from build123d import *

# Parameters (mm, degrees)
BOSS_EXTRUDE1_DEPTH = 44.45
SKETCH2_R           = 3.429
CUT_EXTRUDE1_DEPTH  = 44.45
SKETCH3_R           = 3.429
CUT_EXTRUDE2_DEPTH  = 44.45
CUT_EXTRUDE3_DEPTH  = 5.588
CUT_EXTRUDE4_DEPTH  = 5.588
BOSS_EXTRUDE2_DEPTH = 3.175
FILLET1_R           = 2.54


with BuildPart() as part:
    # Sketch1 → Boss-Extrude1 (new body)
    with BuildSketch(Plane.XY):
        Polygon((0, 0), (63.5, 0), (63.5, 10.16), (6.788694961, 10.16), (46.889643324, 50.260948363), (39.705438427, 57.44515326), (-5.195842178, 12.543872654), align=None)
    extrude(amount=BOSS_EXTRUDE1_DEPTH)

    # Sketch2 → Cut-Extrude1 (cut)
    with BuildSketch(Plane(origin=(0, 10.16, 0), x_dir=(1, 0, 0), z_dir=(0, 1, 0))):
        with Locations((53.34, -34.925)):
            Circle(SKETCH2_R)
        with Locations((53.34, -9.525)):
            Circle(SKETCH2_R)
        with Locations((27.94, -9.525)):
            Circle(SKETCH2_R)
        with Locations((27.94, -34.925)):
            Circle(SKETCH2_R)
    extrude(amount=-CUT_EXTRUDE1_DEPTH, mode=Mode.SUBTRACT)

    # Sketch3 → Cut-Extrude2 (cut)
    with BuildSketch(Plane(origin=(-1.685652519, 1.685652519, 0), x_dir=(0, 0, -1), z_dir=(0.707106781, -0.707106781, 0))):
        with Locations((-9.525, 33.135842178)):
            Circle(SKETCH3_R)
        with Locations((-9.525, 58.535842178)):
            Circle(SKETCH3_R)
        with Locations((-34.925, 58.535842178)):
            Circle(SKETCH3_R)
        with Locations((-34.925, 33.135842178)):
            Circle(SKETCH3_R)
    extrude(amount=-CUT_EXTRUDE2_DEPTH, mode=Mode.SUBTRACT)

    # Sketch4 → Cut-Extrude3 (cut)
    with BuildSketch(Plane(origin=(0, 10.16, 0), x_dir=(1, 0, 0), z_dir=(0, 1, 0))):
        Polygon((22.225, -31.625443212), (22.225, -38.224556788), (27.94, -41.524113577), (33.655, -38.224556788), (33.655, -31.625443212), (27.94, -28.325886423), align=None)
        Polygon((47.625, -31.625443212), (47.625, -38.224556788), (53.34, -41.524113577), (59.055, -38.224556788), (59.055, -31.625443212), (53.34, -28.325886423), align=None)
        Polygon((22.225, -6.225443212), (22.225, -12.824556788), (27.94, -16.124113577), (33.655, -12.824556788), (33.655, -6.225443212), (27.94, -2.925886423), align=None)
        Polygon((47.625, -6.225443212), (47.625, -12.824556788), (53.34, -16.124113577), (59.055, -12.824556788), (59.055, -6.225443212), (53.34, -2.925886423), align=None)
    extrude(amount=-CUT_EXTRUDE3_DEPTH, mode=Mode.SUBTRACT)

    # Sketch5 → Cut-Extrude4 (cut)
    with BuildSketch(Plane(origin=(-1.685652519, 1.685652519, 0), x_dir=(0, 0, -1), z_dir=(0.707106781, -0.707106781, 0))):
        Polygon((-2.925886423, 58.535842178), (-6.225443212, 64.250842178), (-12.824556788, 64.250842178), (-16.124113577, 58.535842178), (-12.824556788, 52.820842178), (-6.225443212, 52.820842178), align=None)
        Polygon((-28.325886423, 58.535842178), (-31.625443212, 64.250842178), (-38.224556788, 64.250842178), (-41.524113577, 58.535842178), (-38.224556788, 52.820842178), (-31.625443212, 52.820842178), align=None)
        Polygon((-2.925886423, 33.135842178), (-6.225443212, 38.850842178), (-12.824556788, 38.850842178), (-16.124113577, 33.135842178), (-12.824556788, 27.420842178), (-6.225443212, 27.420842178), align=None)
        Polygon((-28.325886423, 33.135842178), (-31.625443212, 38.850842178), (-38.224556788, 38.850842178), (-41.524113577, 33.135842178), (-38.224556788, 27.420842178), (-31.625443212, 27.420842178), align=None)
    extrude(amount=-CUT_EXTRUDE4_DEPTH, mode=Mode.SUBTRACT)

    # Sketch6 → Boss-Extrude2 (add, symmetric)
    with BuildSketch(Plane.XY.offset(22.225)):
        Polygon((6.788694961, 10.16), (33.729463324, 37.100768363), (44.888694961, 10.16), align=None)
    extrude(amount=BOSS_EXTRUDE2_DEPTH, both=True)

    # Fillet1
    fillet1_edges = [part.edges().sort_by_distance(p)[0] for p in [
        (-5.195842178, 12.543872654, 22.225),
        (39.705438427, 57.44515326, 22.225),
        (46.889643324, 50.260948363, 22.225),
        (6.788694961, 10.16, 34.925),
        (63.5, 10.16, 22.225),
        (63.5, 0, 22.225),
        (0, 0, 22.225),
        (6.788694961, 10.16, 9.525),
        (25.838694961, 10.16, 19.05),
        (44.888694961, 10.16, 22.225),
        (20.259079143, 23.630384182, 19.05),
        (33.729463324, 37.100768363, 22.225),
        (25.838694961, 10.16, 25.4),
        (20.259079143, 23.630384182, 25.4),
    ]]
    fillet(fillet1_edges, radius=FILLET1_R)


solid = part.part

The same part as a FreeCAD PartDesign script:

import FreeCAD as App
import Part
import Sketcher
from FreeCAD import Vector
Q = App.Units.Quantity


def edges_at(feature, points):
    """Names of the edges that pass closest to the given points."""
    edges = feature.Shape.Edges
    near = lambda p: min(range(len(edges)), key=lambda i: edges[i].distToShape(Part.Vertex(*p))[0])
    return sorted({f"Edge{near(p) + 1}" for p in points})

doc = App.newDocument("Part")
params = doc.addObject("Spreadsheet::Sheet", "Params")
for row, (alias, value) in enumerate([
    ("sketch1_width", "2.5 in"),
    ("sketch1_height", "0.4 in"),
    ("sketch1_length", "0.4 in"),
    ("sketch1_length2", "2.5 in"),
    ("pad1_length", "1.75 in"),
    ("sketch2_diameter", "0.27 in"),
    ("pocket1_length", "1.75 in"),
    ("sketch3_diameter", "0.27 in"),
    ("pocket2_length", "1.75 in"),
    ("pocket3_length", "0.22 in"),
    ("pocket4_length", "0.22 in"),
    ("sketch6_width", "1.5 in"),
    ("sketch6_length", "1.5 in"),
    ("pad2_length", "0.25 in"),
    ("fillet_radius", "0.1 in"),
], start=1):
    params.set(f"A{row}", alias)
    params.set(f"B{row}", "=" + value)
    params.setAlias(f"B{row}", alias)

body = doc.addObject("PartDesign::Body", "Body")

sketch1 = body.newObject("Sketcher::SketchObject", "Sketch")
sketch1.AttachmentSupport = (doc.getObject("XY_Plane"), [""])
sketch1.MapMode = "FlatFace"
sketch1.addGeometry([
    Part.LineSegment(Vector(0, 0, 0), Vector(63.5, 0, 0)),
    Part.LineSegment(Vector(63.5, 0, 0), Vector(63.5, 10.16, 0)),
    Part.LineSegment(Vector(63.5, 10.16, 0), Vector(6.788695, 10.16, 0)),
    Part.LineSegment(Vector(6.788695, 10.16, 0), Vector(46.889643, 50.260948, 0)),
    Part.LineSegment(Vector(46.889643, 50.260948, 0), Vector(39.705438, 57.445153, 0)),
    Part.LineSegment(Vector(39.705438, 57.445153, 0), Vector(-5.195842, 12.543873, 0)),
    Part.LineSegment(Vector(-5.195842, 12.543873, 0), Vector(0, 0, 0)),
], False)
sketch1.addConstraint([
    Sketcher.Constraint("Coincident", 0, 2, 1, 1),
    Sketcher.Constraint("Coincident", 1, 2, 2, 1),
    Sketcher.Constraint("Coincident", 2, 2, 3, 1),
    Sketcher.Constraint("Coincident", 3, 2, 4, 1),
    Sketcher.Constraint("Coincident", 4, 2, 5, 1),
    Sketcher.Constraint("Coincident", 5, 2, 6, 1),
    Sketcher.Constraint("Coincident", 6, 2, 0, 1),
    Sketcher.Constraint("Horizontal", 0),
    Sketcher.Constraint("Vertical", 1),
    Sketcher.Constraint("Horizontal", 2),
    Sketcher.Constraint("Coincident", 6, 2, -1, 1),
    Sketcher.Constraint("Perpendicular", 3, 4),
    Sketcher.Constraint("Perpendicular", 4, 5),
    Sketcher.Constraint("DistanceX", 0, 1, 0, 2, Q("2.5 in")),
    Sketcher.Constraint("DistanceY", 1, 1, 1, 2, Q("0.4 in")),
    Sketcher.Constraint("Angle", 3, Q("45 deg")),
    Sketcher.Constraint("Distance", 4, Q("0.4 in")),
    Sketcher.Constraint("Distance", 5, Q("2.5 in")),
    Sketcher.Constraint("Angle", 6, Q("-67.5 deg")),
    Sketcher.Constraint("Distance", 6, Q("13.57739 mm")),
])
sketch1.setExpression("Constraints[13]", "Params.sketch1_width")
sketch1.setExpression("Constraints[14]", "Params.sketch1_height")
sketch1.setExpression("Constraints[16]", "Params.sketch1_length")
sketch1.setExpression("Constraints[17]", "Params.sketch1_length2")
pad1 = body.newObject("PartDesign::Pad", "Pad")
pad1.Profile = sketch1
pad1.setExpression("Length", "Params.pad1_length")

sketch2 = body.newObject("Sketcher::SketchObject", "Sketch001")
sketch2.AttachmentSupport = (doc.getObject("XZ_Plane"), [""])
sketch2.MapMode = "FlatFace"
sketch2.AttachmentOffset = App.Placement(Vector(0, 0, -0.4 * 25.4), App.Rotation())
sketch2.addGeometry([
    Part.Circle(Vector(53.34, 34.925, 0), Vector(0, 0, 1), 3.429),
    Part.Circle(Vector(53.34, 9.525, 0), Vector(0, 0, 1), 3.429),
    Part.Circle(Vector(27.94, 9.525, 0), Vector(0, 0, 1), 3.429),
    Part.Circle(Vector(27.94, 34.925, 0), Vector(0, 0, 1), 3.429),
], False)
sketch2.addConstraint([
    Sketcher.Constraint("Equal", 0, 1),
    Sketcher.Constraint("Equal", 1, 2),
    Sketcher.Constraint("Equal", 2, 3),
    Sketcher.Constraint("Horizontal", 1, 3, 2, 3),
    Sketcher.Constraint("Horizontal", 0, 3, 3, 3),
    Sketcher.Constraint("Vertical", 0, 3, 1, 3),
    Sketcher.Constraint("Vertical", 2, 3, 3, 3),
    Sketcher.Constraint("Diameter", 0, Q("0.27 in")),
    Sketcher.Constraint("DistanceY", 1, 3, 0, 3, Q("1 in")),
    Sketcher.Constraint("DistanceX", 2, 3, 1, 3, Q("1 in")),
    Sketcher.Constraint("DistanceX", -1, 1, 0, 3, Q("2.1 in")),
    Sketcher.Constraint("DistanceY", -1, 1, 0, 3, Q("1.375 in")),
])
sketch2.setExpression("Constraints[7]", "Params.sketch2_diameter")
pocket1 = body.newObject("PartDesign::Pocket", "Pocket")
pocket1.Profile = sketch2
pocket1.setExpression("Length", "Params.pocket1_length")
pocket1.Reversed = True

sketch3 = body.newObject("Sketcher::SketchObject", "Sketch002")
sketch3.Placement = App.Placement(Vector(-1.685653, 1.685653, 0), App.Rotation(Vector(0, 0, -1), Vector(0.707106781, 0.707106781, 0), Vector(0.707106781, -0.707106781, 0), "ZXY"))
sketch3.addGeometry([
    Part.Circle(Vector(-9.525, 33.135842, 0), Vector(0, 0, 1), 3.429),
    Part.Circle(Vector(-9.525, 58.535842, 0), Vector(0, 0, 1), 3.429),
    Part.Circle(Vector(-34.925, 58.535842, 0), Vector(0, 0, 1), 3.429),
    Part.Circle(Vector(-34.925, 33.135842, 0), Vector(0, 0, 1), 3.429),
], False)
sketch3.addConstraint([
    Sketcher.Constraint("Equal", 0, 1),
    Sketcher.Constraint("Equal", 1, 2),
    Sketcher.Constraint("Equal", 2, 3),
    Sketcher.Constraint("Horizontal", 1, 3, 2, 3),
    Sketcher.Constraint("Horizontal", 0, 3, 3, 3),
    Sketcher.Constraint("Vertical", 0, 3, 1, 3),
    Sketcher.Constraint("Vertical", 2, 3, 3, 3),
    Sketcher.Constraint("Diameter", 0, Q("0.27 in")),
    Sketcher.Constraint("DistanceY", 0, 3, 1, 3, Q("1 in")),
    Sketcher.Constraint("DistanceX", 2, 3, 1, 3, Q("1 in")),
    Sketcher.Constraint("DistanceX", 0, 3, -1, 1, Q("0.375 in")),
    Sketcher.Constraint("DistanceY", -1, 1, 0, 3, Q("33.135842 mm")),
])
sketch3.setExpression("Constraints[7]", "Params.sketch3_diameter")
pocket2 = body.newObject("PartDesign::Pocket", "Pocket001")
pocket2.Profile = sketch3
pocket2.setExpression("Length", "Params.pocket2_length")

sketch4 = body.newObject("Sketcher::SketchObject", "Sketch003")
sketch4.AttachmentSupport = (doc.getObject("XZ_Plane"), [""])
sketch4.MapMode = "FlatFace"
sketch4.AttachmentOffset = App.Placement(Vector(0, 0, -0.4 * 25.4), App.Rotation())
sketch4.addGeometry([
    Part.LineSegment(Vector(22.225, 31.625443, 0), Vector(22.225, 38.224557, 0)),
    Part.LineSegment(Vector(22.225, 38.224557, 0), Vector(27.94, 41.524114, 0)),
    Part.LineSegment(Vector(27.94, 41.524114, 0), Vector(33.655, 38.224557, 0)),
    Part.LineSegment(Vector(33.655, 38.224557, 0), Vector(33.655, 31.625443, 0)),
    Part.LineSegment(Vector(33.655, 31.625443, 0), Vector(27.94, 28.325886, 0)),
    Part.LineSegment(Vector(27.94, 28.325886, 0), Vector(22.225, 31.625443, 0)),
    Part.LineSegment(Vector(47.625, 31.625443, 0), Vector(47.625, 38.224557, 0)),
    Part.LineSegment(Vector(47.625, 38.224557, 0), Vector(53.34, 41.524114, 0)),
    Part.LineSegment(Vector(53.34, 41.524114, 0), Vector(59.055, 38.224557, 0)),
    Part.LineSegment(Vector(59.055, 38.224557, 0), Vector(59.055, 31.625443, 0)),
    Part.LineSegment(Vector(59.055, 31.625443, 0), Vector(53.34, 28.325886, 0)),
    Part.LineSegment(Vector(53.34, 28.325886, 0), Vector(47.625, 31.625443, 0)),
    Part.LineSegment(Vector(22.225, 6.225443, 0), Vector(22.225, 12.824557, 0)),
    Part.LineSegment(Vector(22.225, 12.824557, 0), Vector(27.94, 16.124114, 0)),
    Part.LineSegment(Vector(27.94, 16.124114, 0), Vector(33.655, 12.824557, 0)),
    Part.LineSegment(Vector(33.655, 12.824557, 0), Vector(33.655, 6.225443, 0)),
    Part.LineSegment(Vector(33.655, 6.225443, 0), Vector(27.94, 2.925886, 0)),
    Part.LineSegment(Vector(27.94, 2.925886, 0), Vector(22.225, 6.225443, 0)),
    Part.LineSegment(Vector(47.625, 6.225443, 0), Vector(47.625, 12.824557, 0)),
    Part.LineSegment(Vector(47.625, 12.824557, 0), Vector(53.34, 16.124114, 0)),
    Part.LineSegment(Vector(53.34, 16.124114, 0), Vector(59.055, 12.824557, 0)),
    Part.LineSegment(Vector(59.055, 12.824557, 0), Vector(59.055, 6.225443, 0)),
    Part.LineSegment(Vector(59.055, 6.225443, 0), Vector(53.34, 2.925886, 0)),
    Part.LineSegment(Vector(53.34, 2.925886, 0), Vector(47.625, 6.225443, 0)),
], False)
sketch4.addConstraint([
    Sketcher.Constraint("Coincident", 0, 2, 1, 1),
    Sketcher.Constraint("Coincident", 1, 2, 2, 1),
    Sketcher.Constraint("Coincident", 2, 2, 3, 1),
    Sketcher.Constraint("Coincident", 3, 2, 4, 1),
    Sketcher.Constraint("Coincident", 4, 2, 5, 1),
    Sketcher.Constraint("Coincident", 5, 2, 0, 1),
    Sketcher.Constraint("Coincident", 6, 2, 7, 1),
    Sketcher.Constraint("Coincident", 7, 2, 8, 1),
    Sketcher.Constraint("Coincident", 8, 2, 9, 1),
    Sketcher.Constraint("Coincident", 9, 2, 10, 1),
    Sketcher.Constraint("Coincident", 10, 2, 11, 1),
    Sketcher.Constraint("Coincident", 11, 2, 6, 1),
    Sketcher.Constraint("Coincident", 12, 2, 13, 1),
    Sketcher.Constraint("Coincident", 13, 2, 14, 1),
    Sketcher.Constraint("Coincident", 14, 2, 15, 1),
    Sketcher.Constraint("Coincident", 15, 2, 16, 1),
    Sketcher.Constraint("Coincident", 16, 2, 17, 1),
    Sketcher.Constraint("Coincident", 17, 2, 12, 1),
    Sketcher.Constraint("Coincident", 18, 2, 19, 1),
    Sketcher.Constraint("Coincident", 19, 2, 20, 1),
    Sketcher.Constraint("Coincident", 20, 2, 21, 1),
    Sketcher.Constraint("Coincident", 21, 2, 22, 1),
    Sketcher.Constraint("Coincident", 22, 2, 23, 1),
    Sketcher.Constraint("Coincident", 23, 2, 18, 1),
    Sketcher.Constraint("Vertical", 0),
    Sketcher.Constraint("Vertical", 3),
    Sketcher.Constraint("Vertical", 6),
    Sketcher.Constraint("Vertical", 9),
    Sketcher.Constraint("Vertical", 12),
    Sketcher.Constraint("Vertical", 15),
    Sketcher.Constraint("Vertical", 18),
    Sketcher.Constraint("Vertical", 21),
    Sketcher.Constraint("Parallel", 1, 4),
    Sketcher.Constraint("Parallel", 2, 5),
    Sketcher.Constraint("Parallel", 4, 7),
    Sketcher.Constraint("Parallel", 5, 8),
    Sketcher.Constraint("Parallel", 7, 10),
    Sketcher.Constraint("Parallel", 8, 11),
    Sketcher.Constraint("Parallel", 10, 13),
    Sketcher.Constraint("Parallel", 11, 14),
    Sketcher.Constraint("Parallel", 13, 16),
    Sketcher.Constraint("Parallel", 14, 17),
    Sketcher.Constraint("Parallel", 16, 19),
    Sketcher.Constraint("Parallel", 17, 20),
    Sketcher.Constraint("Parallel", 19, 22),
    Sketcher.Constraint("Parallel", 20, 23),
    Sketcher.Constraint("Horizontal", 0, 2, 2, 2),
    Sketcher.Constraint("Horizontal", 3, 2, 5, 2),
    Sketcher.Constraint("Horizontal", 2, 2, 6, 2),
    Sketcher.Constraint("Horizontal", 1, 2, 7, 2),
    Sketcher.Constraint("Horizontal", 6, 2, 8, 2),
    Sketcher.Constraint("Horizontal", 5, 2, 9, 2),
    Sketcher.Constraint("Horizontal", 4, 2, 10, 2),
    Sketcher.Constraint("Horizontal", 12, 2, 14, 2),
    Sketcher.Constraint("Horizontal", 15, 2, 17, 2),
    Sketcher.Constraint("Horizontal", 14, 2, 18, 2),
    Sketcher.Constraint("Horizontal", 13, 2, 19, 2),
    Sketcher.Constraint("Horizontal", 18, 2, 20, 2),
    Sketcher.Constraint("Horizontal", 17, 2, 21, 2),
    Sketcher.Constraint("Horizontal", 16, 2, 22, 2),
    Sketcher.Constraint("Vertical", 1, 2, 4, 2),
    Sketcher.Constraint("Vertical", 5, 2, 12, 2),
    Sketcher.Constraint("Vertical", 4, 2, 13, 2),
    Sketcher.Constraint("Vertical", 11, 2, 18, 2),
    Sketcher.Constraint("Equal", 9, 12),
    Sketcher.Constraint("Angle", 1, Q("30 deg")),
    Sketcher.Constraint("DistanceX", 0, 2, 6, 2, Q("1 in")),
    Sketcher.Constraint("DistanceY", 12, 2, 0, 2, Q("1 in")),
    Sketcher.Constraint("DistanceX", -1, 1, 1, 2, Q("1.1 in")),
    Sketcher.Constraint("DistanceX", 0, 2, 2, 2, Q("0.45 in")),
    Sketcher.Constraint("DistanceY", 0, 1, 0, 2, Q("6.599114 mm")),
    Sketcher.Constraint("DistanceY", -1, 1, 0, 2, Q("38.224557 mm")),
])
pocket3 = body.newObject("PartDesign::Pocket", "Pocket002")
pocket3.Profile = sketch4
pocket3.setExpression("Length", "Params.pocket3_length")
pocket3.Reversed = True

sketch5 = body.newObject("Sketcher::SketchObject", "Sketch004")
sketch5.Placement = App.Placement(Vector(-1.685653, 1.685653, 0), App.Rotation(Vector(0, 0, -1), Vector(0.707106781, 0.707106781, 0), Vector(0.707106781, -0.707106781, 0), "ZXY"))
sketch5.addGeometry([
    Part.LineSegment(Vector(-2.925886, 58.535842, 0), Vector(-6.225443, 64.250842, 0)),
    Part.LineSegment(Vector(-6.225443, 64.250842, 0), Vector(-12.824557, 64.250842, 0)),
    Part.LineSegment(Vector(-12.824557, 64.250842, 0), Vector(-16.124114, 58.535842, 0)),
    Part.LineSegment(Vector(-16.124114, 58.535842, 0), Vector(-12.824557, 52.820842, 0)),
    Part.LineSegment(Vector(-12.824557, 52.820842, 0), Vector(-6.225443, 52.820842, 0)),
    Part.LineSegment(Vector(-6.225443, 52.820842, 0), Vector(-2.925886, 58.535842, 0)),
    Part.LineSegment(Vector(-28.325886, 58.535842, 0), Vector(-31.625443, 64.250842, 0)),
    Part.LineSegment(Vector(-31.625443, 64.250842, 0), Vector(-38.224557, 64.250842, 0)),
    Part.LineSegment(Vector(-38.224557, 64.250842, 0), Vector(-41.524114, 58.535842, 0)),
    Part.LineSegment(Vector(-41.524114, 58.535842, 0), Vector(-38.224557, 52.820842, 0)),
    Part.LineSegment(Vector(-38.224557, 52.820842, 0), Vector(-31.625443, 52.820842, 0)),
    Part.LineSegment(Vector(-31.625443, 52.820842, 0), Vector(-28.325886, 58.535842, 0)),
    Part.LineSegment(Vector(-2.925886, 33.135842, 0), Vector(-6.225443, 38.850842, 0)),
    Part.LineSegment(Vector(-6.225443, 38.850842, 0), Vector(-12.824557, 38.850842, 0)),
    Part.LineSegment(Vector(-12.824557, 38.850842, 0), Vector(-16.124114, 33.135842, 0)),
    Part.LineSegment(Vector(-16.124114, 33.135842, 0), Vector(-12.824557, 27.420842, 0)),
    Part.LineSegment(Vector(-12.824557, 27.420842, 0), Vector(-6.225443, 27.420842, 0)),
    Part.LineSegment(Vector(-6.225443, 27.420842, 0), Vector(-2.925886, 33.135842, 0)),
    Part.LineSegment(Vector(-28.325886, 33.135842, 0), Vector(-31.625443, 38.850842, 0)),
    Part.LineSegment(Vector(-31.625443, 38.850842, 0), Vector(-38.224557, 38.850842, 0)),
    Part.LineSegment(Vector(-38.224557, 38.850842, 0), Vector(-41.524114, 33.135842, 0)),
    Part.LineSegment(Vector(-41.524114, 33.135842, 0), Vector(-38.224557, 27.420842, 0)),
    Part.LineSegment(Vector(-38.224557, 27.420842, 0), Vector(-31.625443, 27.420842, 0)),
    Part.LineSegment(Vector(-31.625443, 27.420842, 0), Vector(-28.325886, 33.135842, 0)),
], False)
sketch5.addConstraint([
    Sketcher.Constraint("Coincident", 0, 2, 1, 1),
    Sketcher.Constraint("Coincident", 1, 2, 2, 1),
    Sketcher.Constraint("Coincident", 2, 2, 3, 1),
    Sketcher.Constraint("Coincident", 3, 2, 4, 1),
    Sketcher.Constraint("Coincident", 4, 2, 5, 1),
    Sketcher.Constraint("Coincident", 5, 2, 0, 1),
    Sketcher.Constraint("Coincident", 6, 2, 7, 1),
    Sketcher.Constraint("Coincident", 7, 2, 8, 1),
    Sketcher.Constraint("Coincident", 8, 2, 9, 1),
    Sketcher.Constraint("Coincident", 9, 2, 10, 1),
    Sketcher.Constraint("Coincident", 10, 2, 11, 1),
    Sketcher.Constraint("Coincident", 11, 2, 6, 1),
    Sketcher.Constraint("Coincident", 12, 2, 13, 1),
    Sketcher.Constraint("Coincident", 13, 2, 14, 1),
    Sketcher.Constraint("Coincident", 14, 2, 15, 1),
    Sketcher.Constraint("Coincident", 15, 2, 16, 1),
    Sketcher.Constraint("Coincident", 16, 2, 17, 1),
    Sketcher.Constraint("Coincident", 17, 2, 12, 1),
    Sketcher.Constraint("Coincident", 18, 2, 19, 1),
    Sketcher.Constraint("Coincident", 19, 2, 20, 1),
    Sketcher.Constraint("Coincident", 20, 2, 21, 1),
    Sketcher.Constraint("Coincident", 21, 2, 22, 1),
    Sketcher.Constraint("Coincident", 22, 2, 23, 1),
    Sketcher.Constraint("Coincident", 23, 2, 18, 1),
    Sketcher.Constraint("Horizontal", 1),
    Sketcher.Constraint("Horizontal", 4),
    Sketcher.Constraint("Horizontal", 7),
    Sketcher.Constraint("Horizontal", 10),
    Sketcher.Constraint("Horizontal", 13),
    Sketcher.Constraint("Horizontal", 16),
    Sketcher.Constraint("Horizontal", 19),
    Sketcher.Constraint("Horizontal", 22),
    Sketcher.Constraint("Parallel", 0, 3),
    Sketcher.Constraint("Parallel", 2, 5),
    Sketcher.Constraint("Parallel", 3, 6),
    Sketcher.Constraint("Parallel", 5, 8),
    Sketcher.Constraint("Parallel", 6, 9),
    Sketcher.Constraint("Parallel", 8, 11),
    Sketcher.Constraint("Parallel", 9, 12),
    Sketcher.Constraint("Parallel", 11, 14),
    Sketcher.Constraint("Parallel", 12, 15),
    Sketcher.Constraint("Parallel", 14, 17),
    Sketcher.Constraint("Parallel", 15, 18),
    Sketcher.Constraint("Parallel", 17, 20),
    Sketcher.Constraint("Parallel", 18, 21),
    Sketcher.Constraint("Parallel", 20, 23),
    Sketcher.Constraint("Horizontal", 2, 2, 5, 2),
    Sketcher.Constraint("Horizontal", 1, 2, 6, 2),
    Sketcher.Constraint("Horizontal", 5, 2, 8, 2),
    Sketcher.Constraint("Horizontal", 4, 2, 9, 2),
    Sketcher.Constraint("Horizontal", 8, 2, 11, 2),
    Sketcher.Constraint("Horizontal", 14, 2, 17, 2),
    Sketcher.Constraint("Horizontal", 13, 2, 18, 2),
    Sketcher.Constraint("Horizontal", 17, 2, 20, 2),
    Sketcher.Constraint("Horizontal", 16, 2, 21, 2),
    Sketcher.Constraint("Horizontal", 20, 2, 23, 2),
    Sketcher.Constraint("Vertical", 1, 2, 3, 2),
    Sketcher.Constraint("Vertical", 0, 2, 4, 2),
    Sketcher.Constraint("Vertical", 4, 2, 12, 2),
    Sketcher.Constraint("Vertical", 3, 2, 13, 2),
    Sketcher.Constraint("Vertical", 2, 2, 14, 2),
    Sketcher.Constraint("Vertical", 13, 2, 15, 2),
    Sketcher.Constraint("Vertical", 10, 2, 18, 2),
    Sketcher.Constraint("Vertical", 9, 2, 19, 2),
    Sketcher.Constraint("Equal", 4, 7),
    Sketcher.Constraint("Angle", 0, Q("120 deg")),
    Sketcher.Constraint("DistanceX", 6, 2, 0, 2, Q("1 in")),
    Sketcher.Constraint("DistanceY", 12, 2, 0, 2, Q("1 in")),
    Sketcher.Constraint("DistanceY", 3, 2, 1, 2, Q("0.45 in")),
    Sketcher.Constraint("DistanceX", 1, 2, 1, 1, Q("6.599114 mm")),
    Sketcher.Constraint("DistanceX", 0, 2, -1, 1, Q("6.225443 mm")),
    Sketcher.Constraint("DistanceY", -1, 1, 0, 2, Q("64.250842 mm")),
])
pocket4 = body.newObject("PartDesign::Pocket", "Pocket003")
pocket4.Profile = sketch5
pocket4.setExpression("Length", "Params.pocket4_length")

sketch6 = body.newObject("Sketcher::SketchObject", "Sketch005")
sketch6.AttachmentSupport = (doc.getObject("XY_Plane"), [""])
sketch6.MapMode = "FlatFace"
sketch6.AttachmentOffset = App.Placement(Vector(0, 0, 0.875 * 25.4), App.Rotation())
sketch6.addGeometry([
    Part.LineSegment(Vector(33.729463, 37.100768, 0), Vector(6.788695, 10.16, 0)),
    Part.LineSegment(Vector(6.788695, 10.16, 0), Vector(44.888695, 10.16, 0)),
    Part.LineSegment(Vector(44.888695, 10.16, 0), Vector(33.729463, 37.100768, 0)),
], False)
sketch6.addConstraint([
    Sketcher.Constraint("Coincident", 0, 2, 1, 1),
    Sketcher.Constraint("Coincident", 1, 2, 2, 1),
    Sketcher.Constraint("Coincident", 2, 2, 0, 1),
    Sketcher.Constraint("Horizontal", 1),
    Sketcher.Constraint("DistanceX", 1, 1, 1, 2, Q("1.5 in")),
    Sketcher.Constraint("Angle", 0, Q("-135 deg")),
    Sketcher.Constraint("Distance", 0, Q("1.5 in")),
    Sketcher.Constraint("DistanceY", -1, 1, 0, 2, Q("0.4 in")),
    Sketcher.Constraint("DistanceX", -1, 1, 0, 2, Q("6.788695 mm")),
])
sketch6.setExpression("Constraints[4]", "Params.sketch6_width")
sketch6.setExpression("Constraints[6]", "Params.sketch6_length")
pad2 = body.newObject("PartDesign::Pad", "Pad001")
pad2.Profile = sketch6
pad2.setExpression("Length", "Params.pad2_length")
pad2.Midplane = True
doc.recompute()

fillet = body.newObject("PartDesign::Fillet", "Fillet")
fillet.Base = (pad2, edges_at(pad2, [
    (-5.196, 12.544, 22.225),
    (39.705, 57.445, 22.225),
    (46.89, 50.261, 22.225),
    (6.789, 10.16, 34.925),
    (63.5, 10.16, 22.225),
    (63.5, 0, 22.225),
    (0, 0, 22.225),
    (6.789, 10.16, 9.525),
    (25.839, 10.16, 19.05),
    (44.889, 10.16, 22.225),
    (20.259, 23.63, 19.05),
    (33.729, 37.101, 22.225),
    (25.839, 10.16, 25.4),
    (20.259, 23.63, 25.4),
]))
fillet.setExpression("Radius", "Params.fillet_radius")

doc.recompute()
